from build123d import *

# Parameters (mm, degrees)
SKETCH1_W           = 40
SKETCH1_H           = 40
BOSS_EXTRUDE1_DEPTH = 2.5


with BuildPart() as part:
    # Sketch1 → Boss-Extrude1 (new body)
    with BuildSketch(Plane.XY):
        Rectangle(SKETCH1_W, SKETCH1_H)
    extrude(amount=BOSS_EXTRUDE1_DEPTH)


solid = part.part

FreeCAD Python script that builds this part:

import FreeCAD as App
import Part
import Sketcher

V = App.Vector

doc = App.newDocument("Part")
body = doc.addObject("PartDesign::Body", "Body")

sketch1 = body.newObject("Sketcher::SketchObject", "Sketch")
sketch1.AttachmentSupport = (doc.getObject("XY_Plane"), [""])
sketch1.MapMode = "FlatFace"
sketch1.addGeometry(Part.LineSegment(V(-20, 20, 0), V(-20, -20, 0)), False)
sketch1.addGeometry(Part.LineSegment(V(-20, -20, 0), V(20, -20, 0)), False)
sketch1.addGeometry(Part.LineSegment(V(20, -20, 0), V(20, 20, 0)), False)
sketch1.addGeometry(Part.LineSegment(V(20, 20, 0), V(-20, 20, 0)), False)
sketch1.addConstraint(Sketcher.Constraint("Coincident", 0, 2, 1, 1))
sketch1.addConstraint(Sketcher.Constraint("Coincident", 1, 2, 2, 1))
sketch1.addConstraint(Sketcher.Constraint("Coincident", 2, 2, 3, 1))
sketch1.addConstraint(Sketcher.Constraint("Coincident", 3, 2, 0, 1))
sketch1.addConstraint(Sketcher.Constraint("Vertical", 0))
sketch1.addConstraint(Sketcher.Constraint("Horizontal", 1))
sketch1.addConstraint(Sketcher.Constraint("Vertical", 2))
sketch1.addConstraint(Sketcher.Constraint("Horizontal", 3))
sketch1.addConstraint(Sketcher.Constraint("Symmetric", 0, 2, 2, 2, -1, 1))
sketch1.addConstraint(Sketcher.Constraint("Equal", 3, 0))
sketch1.addConstraint(Sketcher.Constraint("DistanceX", 1, 1, 1, 2, 40.0))
pad1 = body.newObject("PartDesign::Pad", "Pad")
pad1.Profile = sketch1
pad1.Length = 2.5

doc.recompute()
